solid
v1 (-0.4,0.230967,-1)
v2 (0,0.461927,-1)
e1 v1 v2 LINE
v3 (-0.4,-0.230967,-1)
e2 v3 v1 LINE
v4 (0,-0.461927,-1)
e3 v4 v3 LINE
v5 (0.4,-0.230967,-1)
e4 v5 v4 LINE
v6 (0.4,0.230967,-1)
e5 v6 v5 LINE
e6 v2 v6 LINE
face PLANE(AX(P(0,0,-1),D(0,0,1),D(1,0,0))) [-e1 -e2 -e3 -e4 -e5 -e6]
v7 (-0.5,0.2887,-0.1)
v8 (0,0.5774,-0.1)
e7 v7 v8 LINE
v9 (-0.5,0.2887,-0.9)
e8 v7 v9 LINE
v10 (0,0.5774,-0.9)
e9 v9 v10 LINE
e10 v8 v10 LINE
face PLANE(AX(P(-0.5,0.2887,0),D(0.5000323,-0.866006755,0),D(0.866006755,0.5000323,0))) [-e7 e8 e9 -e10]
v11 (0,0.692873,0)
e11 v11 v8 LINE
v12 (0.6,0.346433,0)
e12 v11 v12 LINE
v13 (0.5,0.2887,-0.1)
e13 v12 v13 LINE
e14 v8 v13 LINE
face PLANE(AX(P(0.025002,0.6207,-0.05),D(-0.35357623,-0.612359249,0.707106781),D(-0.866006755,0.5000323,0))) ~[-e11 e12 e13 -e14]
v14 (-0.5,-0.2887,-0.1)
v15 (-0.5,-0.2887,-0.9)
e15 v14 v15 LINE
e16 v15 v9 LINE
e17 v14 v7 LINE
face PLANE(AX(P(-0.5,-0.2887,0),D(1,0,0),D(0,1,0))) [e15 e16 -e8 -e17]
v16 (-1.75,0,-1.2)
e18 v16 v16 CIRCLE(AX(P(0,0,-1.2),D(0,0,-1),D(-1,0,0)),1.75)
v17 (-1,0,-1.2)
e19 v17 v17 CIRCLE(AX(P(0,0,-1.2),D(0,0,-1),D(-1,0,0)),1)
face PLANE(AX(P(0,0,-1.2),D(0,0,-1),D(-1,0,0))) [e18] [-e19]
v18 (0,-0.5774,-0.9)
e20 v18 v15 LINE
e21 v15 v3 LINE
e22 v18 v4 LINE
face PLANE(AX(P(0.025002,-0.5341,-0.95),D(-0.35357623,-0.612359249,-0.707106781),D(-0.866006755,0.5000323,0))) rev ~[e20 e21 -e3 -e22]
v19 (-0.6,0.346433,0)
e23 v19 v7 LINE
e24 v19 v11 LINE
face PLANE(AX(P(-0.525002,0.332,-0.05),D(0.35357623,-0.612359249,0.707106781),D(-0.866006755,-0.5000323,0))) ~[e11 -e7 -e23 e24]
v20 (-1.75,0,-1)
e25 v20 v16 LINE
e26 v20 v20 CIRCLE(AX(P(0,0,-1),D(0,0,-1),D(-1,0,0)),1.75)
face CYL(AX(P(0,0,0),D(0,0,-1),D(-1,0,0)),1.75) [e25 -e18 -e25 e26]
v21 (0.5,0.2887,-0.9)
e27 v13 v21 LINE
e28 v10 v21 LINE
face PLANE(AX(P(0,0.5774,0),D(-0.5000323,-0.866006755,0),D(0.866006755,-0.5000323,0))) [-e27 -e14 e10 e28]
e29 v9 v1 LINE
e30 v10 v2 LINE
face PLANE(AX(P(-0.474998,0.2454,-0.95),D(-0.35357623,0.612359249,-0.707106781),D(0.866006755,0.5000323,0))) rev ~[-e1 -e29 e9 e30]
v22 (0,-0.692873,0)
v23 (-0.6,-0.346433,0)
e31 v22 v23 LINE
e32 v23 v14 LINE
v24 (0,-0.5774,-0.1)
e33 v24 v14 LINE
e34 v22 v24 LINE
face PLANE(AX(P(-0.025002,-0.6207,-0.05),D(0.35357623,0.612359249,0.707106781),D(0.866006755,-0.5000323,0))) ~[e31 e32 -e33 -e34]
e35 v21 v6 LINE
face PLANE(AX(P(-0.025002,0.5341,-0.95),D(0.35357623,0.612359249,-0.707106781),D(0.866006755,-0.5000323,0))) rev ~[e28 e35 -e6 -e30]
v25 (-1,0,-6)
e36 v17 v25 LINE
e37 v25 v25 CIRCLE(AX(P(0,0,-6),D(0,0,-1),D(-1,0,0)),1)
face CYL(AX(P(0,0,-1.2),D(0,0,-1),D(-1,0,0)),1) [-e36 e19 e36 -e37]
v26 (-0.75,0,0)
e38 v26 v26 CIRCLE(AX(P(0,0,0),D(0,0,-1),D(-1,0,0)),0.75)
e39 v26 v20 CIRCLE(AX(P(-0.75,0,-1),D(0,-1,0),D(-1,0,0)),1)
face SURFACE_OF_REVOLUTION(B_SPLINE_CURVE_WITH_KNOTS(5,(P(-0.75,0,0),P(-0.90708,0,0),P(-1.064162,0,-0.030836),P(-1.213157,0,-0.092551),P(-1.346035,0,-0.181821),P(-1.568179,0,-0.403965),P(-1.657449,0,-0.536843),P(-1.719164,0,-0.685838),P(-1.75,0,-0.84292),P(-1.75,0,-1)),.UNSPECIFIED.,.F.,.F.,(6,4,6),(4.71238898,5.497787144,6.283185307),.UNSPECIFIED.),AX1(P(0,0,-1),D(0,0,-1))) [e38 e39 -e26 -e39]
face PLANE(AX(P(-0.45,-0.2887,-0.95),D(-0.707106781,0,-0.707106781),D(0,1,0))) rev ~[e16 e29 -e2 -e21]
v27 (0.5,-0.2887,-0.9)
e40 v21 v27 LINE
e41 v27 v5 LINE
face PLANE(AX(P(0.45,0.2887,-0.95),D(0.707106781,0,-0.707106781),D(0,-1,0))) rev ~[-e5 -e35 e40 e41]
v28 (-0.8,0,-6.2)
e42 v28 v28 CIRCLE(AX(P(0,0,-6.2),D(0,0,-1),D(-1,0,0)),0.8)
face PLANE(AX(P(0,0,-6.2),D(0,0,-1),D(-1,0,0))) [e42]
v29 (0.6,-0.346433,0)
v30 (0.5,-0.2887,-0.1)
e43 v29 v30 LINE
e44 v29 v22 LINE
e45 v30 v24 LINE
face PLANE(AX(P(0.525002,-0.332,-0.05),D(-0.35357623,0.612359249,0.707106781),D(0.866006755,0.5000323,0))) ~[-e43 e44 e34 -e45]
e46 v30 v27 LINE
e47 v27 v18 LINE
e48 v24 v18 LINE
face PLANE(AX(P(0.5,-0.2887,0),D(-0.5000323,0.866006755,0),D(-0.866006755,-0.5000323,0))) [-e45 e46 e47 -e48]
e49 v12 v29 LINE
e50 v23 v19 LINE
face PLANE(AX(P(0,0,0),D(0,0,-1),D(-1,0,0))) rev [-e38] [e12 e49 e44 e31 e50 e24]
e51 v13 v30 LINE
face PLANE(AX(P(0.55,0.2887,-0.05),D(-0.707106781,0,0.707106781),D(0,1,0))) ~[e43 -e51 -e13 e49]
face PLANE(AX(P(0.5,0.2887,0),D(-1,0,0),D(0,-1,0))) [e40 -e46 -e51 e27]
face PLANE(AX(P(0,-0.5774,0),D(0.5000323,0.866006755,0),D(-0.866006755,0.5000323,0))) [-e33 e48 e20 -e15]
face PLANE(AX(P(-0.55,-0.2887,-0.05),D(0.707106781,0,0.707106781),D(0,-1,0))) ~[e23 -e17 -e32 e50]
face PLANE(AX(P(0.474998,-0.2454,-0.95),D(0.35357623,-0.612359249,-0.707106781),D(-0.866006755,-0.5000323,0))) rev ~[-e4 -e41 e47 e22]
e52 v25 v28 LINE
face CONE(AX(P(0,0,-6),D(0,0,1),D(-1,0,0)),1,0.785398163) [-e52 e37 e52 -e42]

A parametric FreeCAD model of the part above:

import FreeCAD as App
import Part
import Sketcher

V = App.Vector
Q = App.Units.Quantity


def edges_at(feature, points):
    """Names of the edges that pass closest to the given points."""
    edges = feature.Shape.Edges
    near = lambda p: min(range(len(edges)), key=lambda i: edges[i].distToShape(Part.Vertex(*p))[0])
    return sorted({f"Edge{near(p) + 1}" for p in points})

doc = App.newDocument("Part")
params = doc.addObject("Spreadsheet::Sheet", "Params")
for row, (alias, value) in enumerate([
    ("sketch1_height", "5 mm"),
    ("sketch1_height2", "1.2 mm"),
    ("sketch1_width", "1.75 mm"),
    ("sketch1_width2", "1 mm"),
    ("revolution_angle", "360 deg"),
    ("fillet_radius", "1 mm"),
    ("chamfer_size", "0.2 mm"),
    ("pocket1_length", "1 mm"),
    ("chamfer2_size", "0.1 mm"),
], start=1):
    params.set(f"A{row}", alias)
    params.set(f"B{row}", "=" + value)
    params.setAlias(f"B{row}", alias)

body = doc.addObject("PartDesign::Body", "Body")

# Sketch on XZ plane
sketch1 = body.newObject("Sketcher::SketchObject", "Sketch")
sketch1.AttachmentSupport = (doc.getObject("XZ_Plane"), [""])
sketch1.MapMode = "FlatFace"
sketch1.addGeometry([
    Part.LineSegment(V(-1.8, 0, 0), V(0, 0, 0)),  # 0
    Part.LineSegment(V(0, 0, 0), V(0, -6.2, 0)),  # 1
    Part.LineSegment(V(0, -6.2, 0), V(-1, -6.2, 0)),  # 2
    Part.LineSegment(V(-1, -6.2, 0), V(-1, -1.2, 0)),  # 3
    Part.LineSegment(V(-1, -1.2, 0), V(-1.8, -1.2, 0)),  # 4
    Part.LineSegment(V(-1.8, -1.2, 0), V(-1.8, 0, 0)),  # 5
], False)
sketch1.addConstraint([
    Sketcher.Constraint("Coincident", 0, 2, 1, 1),
    Sketcher.Constraint("Coincident", 1, 2, 2, 1),
    Sketcher.Constraint("Coincident", 2, 2, 3, 1),
    Sketcher.Constraint("Coincident", 3, 2, 4, 1),
    Sketcher.Constraint("Coincident", 4, 2, 5, 1),
    Sketcher.Constraint("Coincident", 5, 2, 0, 1),
    Sketcher.Constraint("Horizontal", 0),
    Sketcher.Constraint("Vertical", 1),
    Sketcher.Constraint("Horizontal", 2),
    Sketcher.Constraint("Vertical", 3),
    Sketcher.Constraint("Horizontal", 4),
    Sketcher.Constraint("Vertical", 5),
    Sketcher.Constraint("Coincident", 0, 2, -1, 1),
    Sketcher.Constraint("DistanceY", 3, 1, 3, 2, Q("5 mm")),
    Sketcher.Constraint("DistanceY", 5, 1, 5, 2, Q("1.2 mm")),
    Sketcher.Constraint("DistanceX", 0, 1, 0, 2, Q("1.75 mm")),
    Sketcher.Constraint("DistanceX", 2, 2, 2, 1, Q("1 mm")),
])
sketch1.setExpression("Constraints[13]", "Params.sketch1_height")
sketch1.setExpression("Constraints[14]", "Params.sketch1_height2")
sketch1.setExpression("Constraints[15]", "Params.sketch1_width")
sketch1.setExpression("Constraints[16]", "Params.sketch1_width2")
revolution = body.newObject("PartDesign::Revolution", "Revolution")
revolution.Profile = sketch1
revolution.ReferenceAxis = (sketch1, ["V_Axis"])
revolution.setExpression("Angle", "Params.revolution_angle")
doc.recompute()

fillet = body.newObject("PartDesign::Fillet", "Fillet")
fillet.Base = (revolution, edges_at(revolution, [(1.75, 0, 0)]))
fillet.setExpression("Radius", "Params.fillet_radius")
doc.recompute()

chamfer = body.newObject("PartDesign::Chamfer", "Chamfer")
chamfer.Base = (fillet, edges_at(fillet, [(1, 0, -6.2)]))
chamfer.setExpression("Size", "Params.chamfer_size")

# Sketch on XY plane
sketch2 = body.newObject("Sketcher::SketchObject", "Sketch001")
sketch2.AttachmentSupport = (doc.getObject("XY_Plane"), [""])
sketch2.MapMode = "FlatFace"
sketch2.addGeometry([
    Part.LineSegment(V(0.5, 0.3, 0), V(0, 0.6, 0)),  # 0
    Part.LineSegment(V(0, 0.6, 0), V(-0.5, 0.3, 0)),  # 1
    Part.LineSegment(V(-0.5, 0.3, 0), V(-0.5, -0.3, 0)),  # 2
    Part.LineSegment(V(-0.5, -0.3, 0), V(0, -0.6, 0)),  # 3
    Part.LineSegment(V(0, -0.6, 0), V(0.5, -0.3, 0)),  # 4
    Part.LineSegment(V(0.5, -0.3, 0), V(0.5, 0.3, 0)),  # 5
], False)
sketch2.addConstraint([
    Sketcher.Constraint("Coincident", 0, 2, 1, 1),
    Sketcher.Constraint("Coincident", 1, 2, 2, 1),
    Sketcher.Constraint("Coincident", 2, 2, 3, 1),
    Sketcher.Constraint("Coincident", 3, 2, 4, 1),
    Sketcher.Constraint("Coincident", 4, 2, 5, 1),
    Sketcher.Constraint("Coincident", 5, 2, 0, 1),
    Sketcher.Constraint("Vertical", 2),
    Sketcher.Constraint("Vertical", 5),
    Sketcher.Constraint("Symmetric", 0, 2, 3, 2, -1, 1),
    Sketcher.Constraint("Symmetric", 1, 2, 4, 2, -1, 1),
    Sketcher.Constraint("PointOnObject", 0, 2, -2),
    Sketcher.Constraint("Parallel", 0, 3),
    Sketcher.Constraint("Horizontal", 2, 2, 4, 2),
    Sketcher.Constraint("DistanceX", 2, 2, 4, 2, Q("1 mm")),
    Sketcher.Constraint("DistanceY", -1, 1, 1, 2, Q("0.2887 mm")),
    Sketcher.Constraint("DistanceY", 1, 2, 0, 2, Q("0.2887 mm")),
])
pocket1 = body.newObject("PartDesign::Pocket", "Pocket")
pocket1.Profile = sketch2
pocket1.setExpression("Length", "Params.pocket1_length")
doc.recompute()

chamfer2 = body.newObject("PartDesign::Chamfer", "Chamfer001")
chamfer2.Base = (pocket1, edges_at(pocket1, [
    (-0.5, 0, 0),
    (-0.25, 0.433, 0),
    (0.25, 0.433, 0),
    (0.5, 0, 0),
    (0.25, -0.433, 0),
    (-0.25, -0.433, 0),
    (-0.25, 0.433, -1),
    (-0.5, 0, -1),
    (-0.25, -0.433, -1),
    (0.25, -0.433, -1),
    (0.5, 0, -1),
    (0.25, 0.433, -1),
]))
chamfer2.setExpression("Size", "Params.chamfer2_size")

doc.recompute()
